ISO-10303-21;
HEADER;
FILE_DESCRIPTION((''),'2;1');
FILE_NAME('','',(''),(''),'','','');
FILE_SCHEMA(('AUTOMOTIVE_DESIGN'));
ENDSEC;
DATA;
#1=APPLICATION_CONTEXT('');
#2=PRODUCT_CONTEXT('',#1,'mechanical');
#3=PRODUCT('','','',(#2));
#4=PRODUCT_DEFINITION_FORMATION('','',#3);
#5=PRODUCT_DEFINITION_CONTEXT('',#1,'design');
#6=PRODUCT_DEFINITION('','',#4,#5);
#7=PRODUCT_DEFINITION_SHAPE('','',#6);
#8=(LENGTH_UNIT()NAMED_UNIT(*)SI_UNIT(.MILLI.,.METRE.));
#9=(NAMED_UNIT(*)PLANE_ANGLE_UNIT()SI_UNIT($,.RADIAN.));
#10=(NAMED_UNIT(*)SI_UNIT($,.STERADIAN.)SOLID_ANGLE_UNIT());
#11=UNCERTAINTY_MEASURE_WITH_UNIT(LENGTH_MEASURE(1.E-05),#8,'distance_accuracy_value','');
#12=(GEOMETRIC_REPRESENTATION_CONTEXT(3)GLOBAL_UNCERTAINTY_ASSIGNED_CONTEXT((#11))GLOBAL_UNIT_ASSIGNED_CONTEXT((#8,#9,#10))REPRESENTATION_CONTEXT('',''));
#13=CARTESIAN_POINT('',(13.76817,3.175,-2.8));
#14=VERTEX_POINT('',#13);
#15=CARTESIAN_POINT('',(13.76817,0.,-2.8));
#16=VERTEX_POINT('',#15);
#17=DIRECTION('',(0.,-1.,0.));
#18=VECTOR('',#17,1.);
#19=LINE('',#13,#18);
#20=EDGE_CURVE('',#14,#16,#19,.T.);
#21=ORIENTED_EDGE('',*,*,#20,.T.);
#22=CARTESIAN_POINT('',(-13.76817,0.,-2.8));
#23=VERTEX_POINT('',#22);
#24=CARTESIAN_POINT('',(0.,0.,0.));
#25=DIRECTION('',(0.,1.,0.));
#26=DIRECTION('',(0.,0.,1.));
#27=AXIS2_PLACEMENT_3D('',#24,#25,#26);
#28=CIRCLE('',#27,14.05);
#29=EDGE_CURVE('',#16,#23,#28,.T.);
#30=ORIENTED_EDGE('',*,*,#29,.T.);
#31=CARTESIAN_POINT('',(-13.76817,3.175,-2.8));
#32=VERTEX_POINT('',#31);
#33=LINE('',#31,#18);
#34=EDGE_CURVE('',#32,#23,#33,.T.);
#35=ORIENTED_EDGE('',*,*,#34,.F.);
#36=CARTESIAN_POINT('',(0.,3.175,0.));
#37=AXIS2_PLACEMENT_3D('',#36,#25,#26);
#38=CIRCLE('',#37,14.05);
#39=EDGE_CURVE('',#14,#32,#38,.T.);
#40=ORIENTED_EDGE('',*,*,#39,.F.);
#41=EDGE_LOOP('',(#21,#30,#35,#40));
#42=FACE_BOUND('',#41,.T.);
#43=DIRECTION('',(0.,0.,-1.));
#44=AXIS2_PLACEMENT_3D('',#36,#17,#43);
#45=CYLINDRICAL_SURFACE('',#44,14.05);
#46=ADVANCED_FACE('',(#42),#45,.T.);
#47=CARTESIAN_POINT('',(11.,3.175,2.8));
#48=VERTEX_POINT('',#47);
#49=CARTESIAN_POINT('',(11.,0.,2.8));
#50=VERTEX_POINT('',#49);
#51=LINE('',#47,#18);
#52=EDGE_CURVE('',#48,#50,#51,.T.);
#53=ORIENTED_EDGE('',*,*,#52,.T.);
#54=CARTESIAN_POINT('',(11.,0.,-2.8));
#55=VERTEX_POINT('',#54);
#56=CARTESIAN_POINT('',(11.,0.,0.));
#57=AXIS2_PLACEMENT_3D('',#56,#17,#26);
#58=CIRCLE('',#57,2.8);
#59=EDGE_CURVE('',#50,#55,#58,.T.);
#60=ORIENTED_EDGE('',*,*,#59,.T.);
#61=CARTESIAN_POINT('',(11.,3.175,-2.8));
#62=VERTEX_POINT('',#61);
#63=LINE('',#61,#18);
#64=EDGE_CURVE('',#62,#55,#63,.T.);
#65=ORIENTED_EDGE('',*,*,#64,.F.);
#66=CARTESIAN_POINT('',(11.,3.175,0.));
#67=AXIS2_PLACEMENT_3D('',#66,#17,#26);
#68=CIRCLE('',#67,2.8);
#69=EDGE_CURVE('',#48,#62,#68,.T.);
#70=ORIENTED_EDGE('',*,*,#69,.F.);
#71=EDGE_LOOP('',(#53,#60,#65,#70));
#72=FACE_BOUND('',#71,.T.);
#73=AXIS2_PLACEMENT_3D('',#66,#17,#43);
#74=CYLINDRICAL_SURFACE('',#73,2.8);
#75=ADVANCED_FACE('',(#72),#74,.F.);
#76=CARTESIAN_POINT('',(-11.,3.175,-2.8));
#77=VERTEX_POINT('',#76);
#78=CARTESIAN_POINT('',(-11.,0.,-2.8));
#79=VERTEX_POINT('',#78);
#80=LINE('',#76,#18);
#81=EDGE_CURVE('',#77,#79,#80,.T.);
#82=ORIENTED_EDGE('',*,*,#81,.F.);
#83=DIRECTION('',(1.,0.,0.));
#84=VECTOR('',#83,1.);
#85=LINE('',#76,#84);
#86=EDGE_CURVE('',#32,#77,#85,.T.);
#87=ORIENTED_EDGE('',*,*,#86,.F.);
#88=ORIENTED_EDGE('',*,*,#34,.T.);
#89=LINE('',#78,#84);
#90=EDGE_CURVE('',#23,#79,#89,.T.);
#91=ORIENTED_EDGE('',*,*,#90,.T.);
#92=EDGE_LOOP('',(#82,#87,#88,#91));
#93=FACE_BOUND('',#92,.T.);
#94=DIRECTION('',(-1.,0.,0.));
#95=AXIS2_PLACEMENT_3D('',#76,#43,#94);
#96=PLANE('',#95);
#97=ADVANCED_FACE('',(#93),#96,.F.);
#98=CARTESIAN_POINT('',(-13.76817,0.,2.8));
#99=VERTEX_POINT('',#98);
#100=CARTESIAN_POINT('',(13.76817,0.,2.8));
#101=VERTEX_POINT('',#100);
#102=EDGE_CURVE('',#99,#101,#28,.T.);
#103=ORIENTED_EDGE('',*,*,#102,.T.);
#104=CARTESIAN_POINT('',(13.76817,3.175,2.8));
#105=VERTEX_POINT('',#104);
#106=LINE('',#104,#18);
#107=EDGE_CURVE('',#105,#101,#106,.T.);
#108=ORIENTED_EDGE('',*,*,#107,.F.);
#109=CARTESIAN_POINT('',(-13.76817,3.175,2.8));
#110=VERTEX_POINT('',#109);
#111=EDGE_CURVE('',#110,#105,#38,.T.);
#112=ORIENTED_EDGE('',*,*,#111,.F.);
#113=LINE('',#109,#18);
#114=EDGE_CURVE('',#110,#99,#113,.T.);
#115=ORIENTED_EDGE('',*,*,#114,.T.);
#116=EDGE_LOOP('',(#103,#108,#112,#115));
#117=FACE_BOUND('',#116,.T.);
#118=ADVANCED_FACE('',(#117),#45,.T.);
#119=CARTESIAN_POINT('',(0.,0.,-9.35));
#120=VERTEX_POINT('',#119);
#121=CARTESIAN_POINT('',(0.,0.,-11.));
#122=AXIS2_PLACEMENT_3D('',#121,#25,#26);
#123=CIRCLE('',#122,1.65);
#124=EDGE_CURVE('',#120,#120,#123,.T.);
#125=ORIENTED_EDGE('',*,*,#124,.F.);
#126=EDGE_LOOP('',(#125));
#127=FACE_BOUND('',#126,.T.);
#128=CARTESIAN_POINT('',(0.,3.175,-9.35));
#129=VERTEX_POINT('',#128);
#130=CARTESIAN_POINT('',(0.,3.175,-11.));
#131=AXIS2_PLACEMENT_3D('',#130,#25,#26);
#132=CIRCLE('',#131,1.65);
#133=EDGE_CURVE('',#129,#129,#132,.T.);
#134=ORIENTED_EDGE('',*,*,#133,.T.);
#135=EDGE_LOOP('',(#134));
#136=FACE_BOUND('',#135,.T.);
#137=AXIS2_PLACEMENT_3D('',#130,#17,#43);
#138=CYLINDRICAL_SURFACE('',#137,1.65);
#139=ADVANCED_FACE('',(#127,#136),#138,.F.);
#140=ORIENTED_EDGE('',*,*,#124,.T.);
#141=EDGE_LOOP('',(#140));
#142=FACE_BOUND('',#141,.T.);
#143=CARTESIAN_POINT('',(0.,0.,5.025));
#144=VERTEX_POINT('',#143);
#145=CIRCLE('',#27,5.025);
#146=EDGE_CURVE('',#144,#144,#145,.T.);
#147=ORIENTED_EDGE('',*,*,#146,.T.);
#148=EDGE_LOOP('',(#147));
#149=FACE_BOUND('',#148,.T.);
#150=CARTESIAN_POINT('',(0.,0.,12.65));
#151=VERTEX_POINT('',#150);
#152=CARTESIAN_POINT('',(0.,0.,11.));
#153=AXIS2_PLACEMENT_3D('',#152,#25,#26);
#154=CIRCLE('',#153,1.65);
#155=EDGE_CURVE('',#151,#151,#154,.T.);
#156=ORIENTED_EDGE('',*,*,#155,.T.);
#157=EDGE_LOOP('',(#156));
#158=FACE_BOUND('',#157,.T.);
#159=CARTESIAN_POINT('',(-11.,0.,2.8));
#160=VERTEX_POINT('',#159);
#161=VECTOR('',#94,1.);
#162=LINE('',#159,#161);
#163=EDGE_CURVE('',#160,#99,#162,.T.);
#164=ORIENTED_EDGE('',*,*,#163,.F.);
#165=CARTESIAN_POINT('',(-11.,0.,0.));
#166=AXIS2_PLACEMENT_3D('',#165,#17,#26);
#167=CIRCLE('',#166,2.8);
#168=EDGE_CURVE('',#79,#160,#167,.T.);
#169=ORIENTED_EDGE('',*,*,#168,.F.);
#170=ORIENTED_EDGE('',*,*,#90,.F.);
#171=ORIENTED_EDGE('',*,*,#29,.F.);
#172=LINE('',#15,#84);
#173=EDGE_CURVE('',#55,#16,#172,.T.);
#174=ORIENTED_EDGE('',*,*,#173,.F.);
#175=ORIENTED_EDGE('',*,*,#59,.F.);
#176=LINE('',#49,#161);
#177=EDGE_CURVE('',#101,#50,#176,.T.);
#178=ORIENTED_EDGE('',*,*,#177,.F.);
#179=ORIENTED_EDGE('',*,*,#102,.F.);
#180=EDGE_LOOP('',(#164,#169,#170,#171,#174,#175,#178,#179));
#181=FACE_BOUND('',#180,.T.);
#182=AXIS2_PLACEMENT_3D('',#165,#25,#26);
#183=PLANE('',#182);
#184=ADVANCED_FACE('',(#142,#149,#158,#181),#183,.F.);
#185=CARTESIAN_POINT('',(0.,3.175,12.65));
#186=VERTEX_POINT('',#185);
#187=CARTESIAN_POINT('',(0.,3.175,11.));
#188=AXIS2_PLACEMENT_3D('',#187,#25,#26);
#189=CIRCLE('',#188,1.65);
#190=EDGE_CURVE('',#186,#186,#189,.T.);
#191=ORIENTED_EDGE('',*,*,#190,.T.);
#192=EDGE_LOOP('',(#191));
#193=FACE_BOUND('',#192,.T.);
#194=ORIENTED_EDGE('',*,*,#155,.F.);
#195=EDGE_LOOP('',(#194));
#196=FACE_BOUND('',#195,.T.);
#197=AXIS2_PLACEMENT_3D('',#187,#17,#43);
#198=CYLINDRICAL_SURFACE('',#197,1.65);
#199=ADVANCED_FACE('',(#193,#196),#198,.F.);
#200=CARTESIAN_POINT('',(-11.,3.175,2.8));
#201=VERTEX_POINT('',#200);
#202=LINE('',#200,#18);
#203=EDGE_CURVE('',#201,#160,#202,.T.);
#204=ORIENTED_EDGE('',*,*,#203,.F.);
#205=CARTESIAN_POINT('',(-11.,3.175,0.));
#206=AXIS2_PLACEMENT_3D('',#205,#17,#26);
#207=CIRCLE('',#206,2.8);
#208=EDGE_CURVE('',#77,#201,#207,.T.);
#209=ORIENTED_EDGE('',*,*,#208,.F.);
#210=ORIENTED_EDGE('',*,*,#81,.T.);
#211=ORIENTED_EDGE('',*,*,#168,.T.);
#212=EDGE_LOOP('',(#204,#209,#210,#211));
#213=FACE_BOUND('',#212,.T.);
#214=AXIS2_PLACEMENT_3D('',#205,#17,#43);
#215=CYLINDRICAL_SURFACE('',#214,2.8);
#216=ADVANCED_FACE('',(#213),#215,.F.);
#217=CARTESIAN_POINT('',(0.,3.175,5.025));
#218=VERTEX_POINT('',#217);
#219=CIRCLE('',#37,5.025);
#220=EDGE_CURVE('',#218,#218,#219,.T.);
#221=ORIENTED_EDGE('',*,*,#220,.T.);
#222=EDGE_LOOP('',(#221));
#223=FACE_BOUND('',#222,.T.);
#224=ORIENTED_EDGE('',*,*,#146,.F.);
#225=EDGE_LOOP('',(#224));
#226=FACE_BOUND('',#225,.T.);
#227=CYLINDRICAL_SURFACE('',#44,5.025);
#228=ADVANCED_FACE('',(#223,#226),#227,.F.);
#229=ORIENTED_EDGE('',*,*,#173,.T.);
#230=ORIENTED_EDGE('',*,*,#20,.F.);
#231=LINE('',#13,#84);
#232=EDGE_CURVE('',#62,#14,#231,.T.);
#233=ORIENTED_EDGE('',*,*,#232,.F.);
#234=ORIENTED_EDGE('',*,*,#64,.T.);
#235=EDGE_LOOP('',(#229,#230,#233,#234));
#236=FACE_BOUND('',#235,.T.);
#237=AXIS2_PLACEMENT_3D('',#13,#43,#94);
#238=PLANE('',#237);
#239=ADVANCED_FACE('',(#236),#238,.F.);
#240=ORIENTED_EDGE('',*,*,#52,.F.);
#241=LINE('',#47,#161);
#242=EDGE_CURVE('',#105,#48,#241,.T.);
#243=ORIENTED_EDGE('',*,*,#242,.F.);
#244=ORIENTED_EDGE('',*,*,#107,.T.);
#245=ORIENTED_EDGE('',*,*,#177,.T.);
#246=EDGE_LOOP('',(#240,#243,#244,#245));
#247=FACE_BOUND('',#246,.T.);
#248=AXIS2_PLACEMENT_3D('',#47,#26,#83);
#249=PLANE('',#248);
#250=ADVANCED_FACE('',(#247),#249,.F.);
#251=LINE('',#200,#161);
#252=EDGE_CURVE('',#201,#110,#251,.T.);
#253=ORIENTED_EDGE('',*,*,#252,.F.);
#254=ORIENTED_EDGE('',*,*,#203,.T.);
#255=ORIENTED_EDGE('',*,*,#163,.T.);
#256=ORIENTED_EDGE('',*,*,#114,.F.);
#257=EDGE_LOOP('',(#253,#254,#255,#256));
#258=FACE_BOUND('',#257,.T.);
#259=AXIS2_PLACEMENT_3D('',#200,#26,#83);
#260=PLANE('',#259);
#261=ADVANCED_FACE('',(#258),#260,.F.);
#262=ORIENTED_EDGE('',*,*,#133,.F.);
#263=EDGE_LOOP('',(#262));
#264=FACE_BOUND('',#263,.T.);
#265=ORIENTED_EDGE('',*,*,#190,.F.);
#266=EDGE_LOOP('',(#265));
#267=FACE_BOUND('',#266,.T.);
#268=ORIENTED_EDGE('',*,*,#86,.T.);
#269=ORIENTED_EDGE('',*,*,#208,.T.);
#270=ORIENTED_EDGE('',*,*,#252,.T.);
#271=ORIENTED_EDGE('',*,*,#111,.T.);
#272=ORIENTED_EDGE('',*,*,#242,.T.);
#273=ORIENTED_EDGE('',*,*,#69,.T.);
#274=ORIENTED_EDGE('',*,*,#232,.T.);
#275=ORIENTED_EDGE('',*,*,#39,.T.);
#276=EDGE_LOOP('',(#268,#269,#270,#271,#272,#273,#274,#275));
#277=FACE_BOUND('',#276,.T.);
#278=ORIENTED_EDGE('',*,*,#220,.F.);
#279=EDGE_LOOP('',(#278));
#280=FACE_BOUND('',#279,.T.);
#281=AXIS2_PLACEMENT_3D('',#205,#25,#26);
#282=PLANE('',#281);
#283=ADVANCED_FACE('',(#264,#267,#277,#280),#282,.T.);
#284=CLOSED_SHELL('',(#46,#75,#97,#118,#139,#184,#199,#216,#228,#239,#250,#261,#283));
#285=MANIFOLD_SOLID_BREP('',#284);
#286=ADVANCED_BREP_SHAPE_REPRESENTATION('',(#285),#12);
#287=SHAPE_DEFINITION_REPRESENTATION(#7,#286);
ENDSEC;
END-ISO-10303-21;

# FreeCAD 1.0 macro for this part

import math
import FreeCAD as App
import Part
import Sketcher
Q = App.Units.Quantity

doc = App.newDocument("Part")
params = doc.addObject("Spreadsheet::Sheet", "Params")
for row, (alias, value) in enumerate([
    ("sketch1_diameter", "3.3 mm"),
    ("sketch1_radius", "2.8 mm"),
    ("sketch1_diameter2", "10.05 mm"),
    ("sketch1_radius2", "14.05 mm"),
    ("pad1_length", "3.175 mm"),
], start=1):
    params.set(f"A{row}", alias)
    params.set(f"B{row}", "=" + value)
    params.setAlias(f"B{row}", alias)

body = doc.addObject("PartDesign::Body", "Body")

# Sketch on XZ plane
sketch1 = doc.addObject("Sketcher::SketchObject", "Sketch")
body.addObject(sketch1)
sketch1.AttachmentSupport = (doc.XZ_Plane, [""])
sketch1.MapMode = "FlatFace"
sketch1.addGeometry([
    Part.LineSegment(App.Vector(-13.76817, -2.8, 0), App.Vector(-11, -2.8, 0)),  # 0
    Part.ArcOfCircle(Part.Circle(App.Vector(-11, 0, 0), App.Vector(0, 0, 1), 2.8), math.radians(-90), math.radians(90)),  # 1
    Part.LineSegment(App.Vector(-11, 2.8, 0), App.Vector(-13.76817, 2.8, 0)),  # 2
    Part.ArcOfCircle(Part.Circle(App.Vector(0, 0, 0), App.Vector(0, 0, 1), 14.05), math.radians(11.495341), math.radians(168.504659)),  # 3
    Part.LineSegment(App.Vector(13.76817, 2.8, 0), App.Vector(11, 2.8, 0)),  # 4
    Part.ArcOfCircle(Part.Circle(App.Vector(11, 0, 0), App.Vector(0, 0, 1), 2.8), math.radians(90), math.radians(270)),  # 5
    Part.LineSegment(App.Vector(11, -2.8, 0), App.Vector(13.76817, -2.8, 0)),  # 6
    Part.ArcOfCircle(Part.Circle(App.Vector(0, 0, 0), App.Vector(0, 0, 1), 14.05), math.radians(-168.504659), math.radians(-11.495341)),  # 7
    Part.Circle(App.Vector(0, 11, 0), App.Vector(0, 0, 1), 1.65),  # 8
    Part.Circle(App.Vector(0, 0, 0), App.Vector(0, 0, 1), 5.025),  # 9
    Part.Circle(App.Vector(0, -11, 0), App.Vector(0, 0, 1), 1.65),  # 10
], False)
sketch1.addConstraint([
    Sketcher.Constraint("Tangent", 0, 2, 1, 1),
    Sketcher.Constraint("Tangent", 1, 2, 2, 1),
    Sketcher.Constraint("Coincident", 2, 2, 3, 2),
    Sketcher.Constraint("Coincident", 3, 1, 4, 1),
    Sketcher.Constraint("Tangent", 4, 2, 5, 1),
    Sketcher.Constraint("Tangent", 5, 2, 6, 1),
    Sketcher.Constraint("Coincident", 6, 2, 7, 2),
    Sketcher.Constraint("Coincident", 7, 1, 0, 1),
    Sketcher.Constraint("Horizontal", 0),
    Sketcher.Constraint("Horizontal", 2),
    Sketcher.Constraint("Horizontal", 4),
    Sketcher.Constraint("Horizontal", 6),
    Sketcher.Constraint("Coincident", 3, 3, -1, 1),
    Sketcher.Constraint("Coincident", 7, 3, -1, 1),
    Sketcher.Constraint("Coincident", 9, 3, -1, 1),
    Sketcher.Constraint("Equal", 1, 5),
    Sketcher.Constraint("Equal", 3, 7),
    Sketcher.Constraint("Equal", 8, 10),
    Sketcher.Constraint("Symmetric", 1, 3, 5, 3, -1, 1),
    Sketcher.Constraint("Symmetric", 8, 3, 10, 3, -1, 1),
    Sketcher.Constraint("PointOnObject", 1, 3, -1),
    Sketcher.Constraint("PointOnObject", 8, 3, -2),
    Sketcher.Constraint("Diameter", 8, Q("3.3 mm")),
    Sketcher.Constraint("Radius", 1, Q("2.8 mm")),
    Sketcher.Constraint("Diameter", 9, Q("10.05 mm")),
    Sketcher.Constraint("Radius", 3, Q("14.05 mm")),
    Sketcher.Constraint("DistanceX", 1, 3, -1, 1, Q("11 mm")),
    Sketcher.Constraint("DistanceY", -1, 1, 8, 3, Q("11 mm")),
])
sketch1.setExpression("Constraints[22]", "Params.sketch1_diameter")
sketch1.setExpression("Constraints[23]", "Params.sketch1_radius")
sketch1.setExpression("Constraints[24]", "Params.sketch1_diameter2")
sketch1.setExpression("Constraints[25]", "Params.sketch1_radius2")
pad1 = doc.addObject("PartDesign::Pad", "Pad")
body.addObject(pad1)
pad1.Profile = sketch1
pad1.setExpression("Length", "Params.pad1_length")
pad1.Reversed = True

doc.recompute()
